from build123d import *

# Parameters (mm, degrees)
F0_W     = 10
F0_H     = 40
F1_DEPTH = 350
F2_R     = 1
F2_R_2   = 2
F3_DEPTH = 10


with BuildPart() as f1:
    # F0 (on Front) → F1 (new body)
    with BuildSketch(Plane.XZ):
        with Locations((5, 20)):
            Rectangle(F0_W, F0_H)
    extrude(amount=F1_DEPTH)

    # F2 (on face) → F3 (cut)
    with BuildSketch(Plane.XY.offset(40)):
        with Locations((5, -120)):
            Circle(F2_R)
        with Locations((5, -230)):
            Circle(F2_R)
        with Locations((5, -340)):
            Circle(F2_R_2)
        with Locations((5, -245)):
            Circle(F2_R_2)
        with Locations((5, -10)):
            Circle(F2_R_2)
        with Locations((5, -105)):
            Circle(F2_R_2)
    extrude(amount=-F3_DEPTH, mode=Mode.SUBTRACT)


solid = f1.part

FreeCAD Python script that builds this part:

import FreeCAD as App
import Part
import Sketcher
Q = App.Units.Quantity

doc = App.newDocument("Part")
body = doc.addObject("PartDesign::Body", "Body")

sketch1 = body.newObject("Sketcher::SketchObject", "Sketch")
sketch1.AttachmentSupport = (doc.getObject("XZ_Plane"), [""])
sketch1.MapMode = "FlatFace"
sketch1.addGeometry([
    Part.LineSegment(App.Vector(0, 40, 0), App.Vector(0, 0, 0)),
    Part.LineSegment(App.Vector(0, 0, 0), App.Vector(10, 0, 0)),
    Part.LineSegment(App.Vector(10, 0, 0), App.Vector(10, 40, 0)),
    Part.LineSegment(App.Vector(10, 40, 0), App.Vector(0, 40, 0)),
], False)
sketch1.addConstraint([
    Sketcher.Constraint("Coincident", 0, 2, 1, 1),
    Sketcher.Constraint("Coincident", 1, 2, 2, 1),
    Sketcher.Constraint("Coincident", 2, 2, 3, 1),
    Sketcher.Constraint("Coincident", 3, 2, 0, 1),
    Sketcher.Constraint("Vertical", 0),
    Sketcher.Constraint("Horizontal", 1),
    Sketcher.Constraint("Vertical", 2),
    Sketcher.Constraint("Horizontal", 3),
    Sketcher.Constraint("Coincident", 0, 2, -1, 1),
    Sketcher.Constraint("DistanceX", 1, 1, 1, 2, Q("10 mm")),
    Sketcher.Constraint("DistanceY", 0, 2, 0, 1, Q("40 mm")),
])
pad1 = body.newObject("PartDesign::Pad", "Pad")
pad1.Profile = sketch1
pad1.Length = 350

sketch2 = body.newObject("Sketcher::SketchObject", "Sketch001")
sketch2.AttachmentSupport = (doc.getObject("XY_Plane"), [""])
sketch2.MapMode = "FlatFace"
sketch2.AttachmentOffset = App.Placement(App.Vector(0, 0, 40), App.Rotation())
sketch2.addGeometry([
    Part.Circle(App.Vector(5, -120, 0), App.Vector(0, 0, 1), 1),
    Part.Circle(App.Vector(5, -230, 0), App.Vector(0, 0, 1), 1),
    Part.Circle(App.Vector(5, -340, 0), App.Vector(0, 0, 1), 2),
    Part.Circle(App.Vector(5, -245, 0), App.Vector(0, 0, 1), 2),
    Part.Circle(App.Vector(5, -10, 0), App.Vector(0, 0, 1), 2),
    Part.Circle(App.Vector(5, -105, 0), App.Vector(0, 0, 1), 2),
], False)
sketch2.addConstraint([
    Sketcher.Constraint("Equal", 0, 1),
    Sketcher.Constraint("Equal", 2, 3),
    Sketcher.Constraint("Equal", 3, 4),
    Sketcher.Constraint("Equal", 4, 5),
    Sketcher.Constraint("Vertical", 0, 3, 1, 3),
    Sketcher.Constraint("Vertical", 1, 3, 2, 3),
    Sketcher.Constraint("Vertical", 2, 3, 3, 3),
    Sketcher.Constraint("Vertical", 3, 3, 4, 3),
    Sketcher.Constraint("Vertical", 4, 3, 5, 3),
    Sketcher.Constraint("Diameter", 0, Q("2 mm")),
    Sketcher.Constraint("Diameter", 2, Q("4 mm")),
    Sketcher.Constraint("DistanceX", -1, 1, 0, 3, Q("5 mm")),
    Sketcher.Constraint("DistanceY", 0, 3, -1, 1, Q("120 mm")),
    Sketcher.Constraint("DistanceY", 1, 3, -1, 1, Q("230 mm")),
    Sketcher.Constraint("DistanceY", 2, 3, -1, 1, Q("340 mm")),
    Sketcher.Constraint("DistanceY", 3, 3, -1, 1, Q("245 mm")),
    Sketcher.Constraint("DistanceY", 4, 3, -1, 1, Q("10 mm")),
    Sketcher.Constraint("DistanceY", 5, 3, -1, 1, Q("105 mm")),
])
pocket1 = body.newObject("PartDesign::Pocket", "Pocket")
pocket1.Profile = sketch2
pocket1.Length = 10

doc.recompute()
